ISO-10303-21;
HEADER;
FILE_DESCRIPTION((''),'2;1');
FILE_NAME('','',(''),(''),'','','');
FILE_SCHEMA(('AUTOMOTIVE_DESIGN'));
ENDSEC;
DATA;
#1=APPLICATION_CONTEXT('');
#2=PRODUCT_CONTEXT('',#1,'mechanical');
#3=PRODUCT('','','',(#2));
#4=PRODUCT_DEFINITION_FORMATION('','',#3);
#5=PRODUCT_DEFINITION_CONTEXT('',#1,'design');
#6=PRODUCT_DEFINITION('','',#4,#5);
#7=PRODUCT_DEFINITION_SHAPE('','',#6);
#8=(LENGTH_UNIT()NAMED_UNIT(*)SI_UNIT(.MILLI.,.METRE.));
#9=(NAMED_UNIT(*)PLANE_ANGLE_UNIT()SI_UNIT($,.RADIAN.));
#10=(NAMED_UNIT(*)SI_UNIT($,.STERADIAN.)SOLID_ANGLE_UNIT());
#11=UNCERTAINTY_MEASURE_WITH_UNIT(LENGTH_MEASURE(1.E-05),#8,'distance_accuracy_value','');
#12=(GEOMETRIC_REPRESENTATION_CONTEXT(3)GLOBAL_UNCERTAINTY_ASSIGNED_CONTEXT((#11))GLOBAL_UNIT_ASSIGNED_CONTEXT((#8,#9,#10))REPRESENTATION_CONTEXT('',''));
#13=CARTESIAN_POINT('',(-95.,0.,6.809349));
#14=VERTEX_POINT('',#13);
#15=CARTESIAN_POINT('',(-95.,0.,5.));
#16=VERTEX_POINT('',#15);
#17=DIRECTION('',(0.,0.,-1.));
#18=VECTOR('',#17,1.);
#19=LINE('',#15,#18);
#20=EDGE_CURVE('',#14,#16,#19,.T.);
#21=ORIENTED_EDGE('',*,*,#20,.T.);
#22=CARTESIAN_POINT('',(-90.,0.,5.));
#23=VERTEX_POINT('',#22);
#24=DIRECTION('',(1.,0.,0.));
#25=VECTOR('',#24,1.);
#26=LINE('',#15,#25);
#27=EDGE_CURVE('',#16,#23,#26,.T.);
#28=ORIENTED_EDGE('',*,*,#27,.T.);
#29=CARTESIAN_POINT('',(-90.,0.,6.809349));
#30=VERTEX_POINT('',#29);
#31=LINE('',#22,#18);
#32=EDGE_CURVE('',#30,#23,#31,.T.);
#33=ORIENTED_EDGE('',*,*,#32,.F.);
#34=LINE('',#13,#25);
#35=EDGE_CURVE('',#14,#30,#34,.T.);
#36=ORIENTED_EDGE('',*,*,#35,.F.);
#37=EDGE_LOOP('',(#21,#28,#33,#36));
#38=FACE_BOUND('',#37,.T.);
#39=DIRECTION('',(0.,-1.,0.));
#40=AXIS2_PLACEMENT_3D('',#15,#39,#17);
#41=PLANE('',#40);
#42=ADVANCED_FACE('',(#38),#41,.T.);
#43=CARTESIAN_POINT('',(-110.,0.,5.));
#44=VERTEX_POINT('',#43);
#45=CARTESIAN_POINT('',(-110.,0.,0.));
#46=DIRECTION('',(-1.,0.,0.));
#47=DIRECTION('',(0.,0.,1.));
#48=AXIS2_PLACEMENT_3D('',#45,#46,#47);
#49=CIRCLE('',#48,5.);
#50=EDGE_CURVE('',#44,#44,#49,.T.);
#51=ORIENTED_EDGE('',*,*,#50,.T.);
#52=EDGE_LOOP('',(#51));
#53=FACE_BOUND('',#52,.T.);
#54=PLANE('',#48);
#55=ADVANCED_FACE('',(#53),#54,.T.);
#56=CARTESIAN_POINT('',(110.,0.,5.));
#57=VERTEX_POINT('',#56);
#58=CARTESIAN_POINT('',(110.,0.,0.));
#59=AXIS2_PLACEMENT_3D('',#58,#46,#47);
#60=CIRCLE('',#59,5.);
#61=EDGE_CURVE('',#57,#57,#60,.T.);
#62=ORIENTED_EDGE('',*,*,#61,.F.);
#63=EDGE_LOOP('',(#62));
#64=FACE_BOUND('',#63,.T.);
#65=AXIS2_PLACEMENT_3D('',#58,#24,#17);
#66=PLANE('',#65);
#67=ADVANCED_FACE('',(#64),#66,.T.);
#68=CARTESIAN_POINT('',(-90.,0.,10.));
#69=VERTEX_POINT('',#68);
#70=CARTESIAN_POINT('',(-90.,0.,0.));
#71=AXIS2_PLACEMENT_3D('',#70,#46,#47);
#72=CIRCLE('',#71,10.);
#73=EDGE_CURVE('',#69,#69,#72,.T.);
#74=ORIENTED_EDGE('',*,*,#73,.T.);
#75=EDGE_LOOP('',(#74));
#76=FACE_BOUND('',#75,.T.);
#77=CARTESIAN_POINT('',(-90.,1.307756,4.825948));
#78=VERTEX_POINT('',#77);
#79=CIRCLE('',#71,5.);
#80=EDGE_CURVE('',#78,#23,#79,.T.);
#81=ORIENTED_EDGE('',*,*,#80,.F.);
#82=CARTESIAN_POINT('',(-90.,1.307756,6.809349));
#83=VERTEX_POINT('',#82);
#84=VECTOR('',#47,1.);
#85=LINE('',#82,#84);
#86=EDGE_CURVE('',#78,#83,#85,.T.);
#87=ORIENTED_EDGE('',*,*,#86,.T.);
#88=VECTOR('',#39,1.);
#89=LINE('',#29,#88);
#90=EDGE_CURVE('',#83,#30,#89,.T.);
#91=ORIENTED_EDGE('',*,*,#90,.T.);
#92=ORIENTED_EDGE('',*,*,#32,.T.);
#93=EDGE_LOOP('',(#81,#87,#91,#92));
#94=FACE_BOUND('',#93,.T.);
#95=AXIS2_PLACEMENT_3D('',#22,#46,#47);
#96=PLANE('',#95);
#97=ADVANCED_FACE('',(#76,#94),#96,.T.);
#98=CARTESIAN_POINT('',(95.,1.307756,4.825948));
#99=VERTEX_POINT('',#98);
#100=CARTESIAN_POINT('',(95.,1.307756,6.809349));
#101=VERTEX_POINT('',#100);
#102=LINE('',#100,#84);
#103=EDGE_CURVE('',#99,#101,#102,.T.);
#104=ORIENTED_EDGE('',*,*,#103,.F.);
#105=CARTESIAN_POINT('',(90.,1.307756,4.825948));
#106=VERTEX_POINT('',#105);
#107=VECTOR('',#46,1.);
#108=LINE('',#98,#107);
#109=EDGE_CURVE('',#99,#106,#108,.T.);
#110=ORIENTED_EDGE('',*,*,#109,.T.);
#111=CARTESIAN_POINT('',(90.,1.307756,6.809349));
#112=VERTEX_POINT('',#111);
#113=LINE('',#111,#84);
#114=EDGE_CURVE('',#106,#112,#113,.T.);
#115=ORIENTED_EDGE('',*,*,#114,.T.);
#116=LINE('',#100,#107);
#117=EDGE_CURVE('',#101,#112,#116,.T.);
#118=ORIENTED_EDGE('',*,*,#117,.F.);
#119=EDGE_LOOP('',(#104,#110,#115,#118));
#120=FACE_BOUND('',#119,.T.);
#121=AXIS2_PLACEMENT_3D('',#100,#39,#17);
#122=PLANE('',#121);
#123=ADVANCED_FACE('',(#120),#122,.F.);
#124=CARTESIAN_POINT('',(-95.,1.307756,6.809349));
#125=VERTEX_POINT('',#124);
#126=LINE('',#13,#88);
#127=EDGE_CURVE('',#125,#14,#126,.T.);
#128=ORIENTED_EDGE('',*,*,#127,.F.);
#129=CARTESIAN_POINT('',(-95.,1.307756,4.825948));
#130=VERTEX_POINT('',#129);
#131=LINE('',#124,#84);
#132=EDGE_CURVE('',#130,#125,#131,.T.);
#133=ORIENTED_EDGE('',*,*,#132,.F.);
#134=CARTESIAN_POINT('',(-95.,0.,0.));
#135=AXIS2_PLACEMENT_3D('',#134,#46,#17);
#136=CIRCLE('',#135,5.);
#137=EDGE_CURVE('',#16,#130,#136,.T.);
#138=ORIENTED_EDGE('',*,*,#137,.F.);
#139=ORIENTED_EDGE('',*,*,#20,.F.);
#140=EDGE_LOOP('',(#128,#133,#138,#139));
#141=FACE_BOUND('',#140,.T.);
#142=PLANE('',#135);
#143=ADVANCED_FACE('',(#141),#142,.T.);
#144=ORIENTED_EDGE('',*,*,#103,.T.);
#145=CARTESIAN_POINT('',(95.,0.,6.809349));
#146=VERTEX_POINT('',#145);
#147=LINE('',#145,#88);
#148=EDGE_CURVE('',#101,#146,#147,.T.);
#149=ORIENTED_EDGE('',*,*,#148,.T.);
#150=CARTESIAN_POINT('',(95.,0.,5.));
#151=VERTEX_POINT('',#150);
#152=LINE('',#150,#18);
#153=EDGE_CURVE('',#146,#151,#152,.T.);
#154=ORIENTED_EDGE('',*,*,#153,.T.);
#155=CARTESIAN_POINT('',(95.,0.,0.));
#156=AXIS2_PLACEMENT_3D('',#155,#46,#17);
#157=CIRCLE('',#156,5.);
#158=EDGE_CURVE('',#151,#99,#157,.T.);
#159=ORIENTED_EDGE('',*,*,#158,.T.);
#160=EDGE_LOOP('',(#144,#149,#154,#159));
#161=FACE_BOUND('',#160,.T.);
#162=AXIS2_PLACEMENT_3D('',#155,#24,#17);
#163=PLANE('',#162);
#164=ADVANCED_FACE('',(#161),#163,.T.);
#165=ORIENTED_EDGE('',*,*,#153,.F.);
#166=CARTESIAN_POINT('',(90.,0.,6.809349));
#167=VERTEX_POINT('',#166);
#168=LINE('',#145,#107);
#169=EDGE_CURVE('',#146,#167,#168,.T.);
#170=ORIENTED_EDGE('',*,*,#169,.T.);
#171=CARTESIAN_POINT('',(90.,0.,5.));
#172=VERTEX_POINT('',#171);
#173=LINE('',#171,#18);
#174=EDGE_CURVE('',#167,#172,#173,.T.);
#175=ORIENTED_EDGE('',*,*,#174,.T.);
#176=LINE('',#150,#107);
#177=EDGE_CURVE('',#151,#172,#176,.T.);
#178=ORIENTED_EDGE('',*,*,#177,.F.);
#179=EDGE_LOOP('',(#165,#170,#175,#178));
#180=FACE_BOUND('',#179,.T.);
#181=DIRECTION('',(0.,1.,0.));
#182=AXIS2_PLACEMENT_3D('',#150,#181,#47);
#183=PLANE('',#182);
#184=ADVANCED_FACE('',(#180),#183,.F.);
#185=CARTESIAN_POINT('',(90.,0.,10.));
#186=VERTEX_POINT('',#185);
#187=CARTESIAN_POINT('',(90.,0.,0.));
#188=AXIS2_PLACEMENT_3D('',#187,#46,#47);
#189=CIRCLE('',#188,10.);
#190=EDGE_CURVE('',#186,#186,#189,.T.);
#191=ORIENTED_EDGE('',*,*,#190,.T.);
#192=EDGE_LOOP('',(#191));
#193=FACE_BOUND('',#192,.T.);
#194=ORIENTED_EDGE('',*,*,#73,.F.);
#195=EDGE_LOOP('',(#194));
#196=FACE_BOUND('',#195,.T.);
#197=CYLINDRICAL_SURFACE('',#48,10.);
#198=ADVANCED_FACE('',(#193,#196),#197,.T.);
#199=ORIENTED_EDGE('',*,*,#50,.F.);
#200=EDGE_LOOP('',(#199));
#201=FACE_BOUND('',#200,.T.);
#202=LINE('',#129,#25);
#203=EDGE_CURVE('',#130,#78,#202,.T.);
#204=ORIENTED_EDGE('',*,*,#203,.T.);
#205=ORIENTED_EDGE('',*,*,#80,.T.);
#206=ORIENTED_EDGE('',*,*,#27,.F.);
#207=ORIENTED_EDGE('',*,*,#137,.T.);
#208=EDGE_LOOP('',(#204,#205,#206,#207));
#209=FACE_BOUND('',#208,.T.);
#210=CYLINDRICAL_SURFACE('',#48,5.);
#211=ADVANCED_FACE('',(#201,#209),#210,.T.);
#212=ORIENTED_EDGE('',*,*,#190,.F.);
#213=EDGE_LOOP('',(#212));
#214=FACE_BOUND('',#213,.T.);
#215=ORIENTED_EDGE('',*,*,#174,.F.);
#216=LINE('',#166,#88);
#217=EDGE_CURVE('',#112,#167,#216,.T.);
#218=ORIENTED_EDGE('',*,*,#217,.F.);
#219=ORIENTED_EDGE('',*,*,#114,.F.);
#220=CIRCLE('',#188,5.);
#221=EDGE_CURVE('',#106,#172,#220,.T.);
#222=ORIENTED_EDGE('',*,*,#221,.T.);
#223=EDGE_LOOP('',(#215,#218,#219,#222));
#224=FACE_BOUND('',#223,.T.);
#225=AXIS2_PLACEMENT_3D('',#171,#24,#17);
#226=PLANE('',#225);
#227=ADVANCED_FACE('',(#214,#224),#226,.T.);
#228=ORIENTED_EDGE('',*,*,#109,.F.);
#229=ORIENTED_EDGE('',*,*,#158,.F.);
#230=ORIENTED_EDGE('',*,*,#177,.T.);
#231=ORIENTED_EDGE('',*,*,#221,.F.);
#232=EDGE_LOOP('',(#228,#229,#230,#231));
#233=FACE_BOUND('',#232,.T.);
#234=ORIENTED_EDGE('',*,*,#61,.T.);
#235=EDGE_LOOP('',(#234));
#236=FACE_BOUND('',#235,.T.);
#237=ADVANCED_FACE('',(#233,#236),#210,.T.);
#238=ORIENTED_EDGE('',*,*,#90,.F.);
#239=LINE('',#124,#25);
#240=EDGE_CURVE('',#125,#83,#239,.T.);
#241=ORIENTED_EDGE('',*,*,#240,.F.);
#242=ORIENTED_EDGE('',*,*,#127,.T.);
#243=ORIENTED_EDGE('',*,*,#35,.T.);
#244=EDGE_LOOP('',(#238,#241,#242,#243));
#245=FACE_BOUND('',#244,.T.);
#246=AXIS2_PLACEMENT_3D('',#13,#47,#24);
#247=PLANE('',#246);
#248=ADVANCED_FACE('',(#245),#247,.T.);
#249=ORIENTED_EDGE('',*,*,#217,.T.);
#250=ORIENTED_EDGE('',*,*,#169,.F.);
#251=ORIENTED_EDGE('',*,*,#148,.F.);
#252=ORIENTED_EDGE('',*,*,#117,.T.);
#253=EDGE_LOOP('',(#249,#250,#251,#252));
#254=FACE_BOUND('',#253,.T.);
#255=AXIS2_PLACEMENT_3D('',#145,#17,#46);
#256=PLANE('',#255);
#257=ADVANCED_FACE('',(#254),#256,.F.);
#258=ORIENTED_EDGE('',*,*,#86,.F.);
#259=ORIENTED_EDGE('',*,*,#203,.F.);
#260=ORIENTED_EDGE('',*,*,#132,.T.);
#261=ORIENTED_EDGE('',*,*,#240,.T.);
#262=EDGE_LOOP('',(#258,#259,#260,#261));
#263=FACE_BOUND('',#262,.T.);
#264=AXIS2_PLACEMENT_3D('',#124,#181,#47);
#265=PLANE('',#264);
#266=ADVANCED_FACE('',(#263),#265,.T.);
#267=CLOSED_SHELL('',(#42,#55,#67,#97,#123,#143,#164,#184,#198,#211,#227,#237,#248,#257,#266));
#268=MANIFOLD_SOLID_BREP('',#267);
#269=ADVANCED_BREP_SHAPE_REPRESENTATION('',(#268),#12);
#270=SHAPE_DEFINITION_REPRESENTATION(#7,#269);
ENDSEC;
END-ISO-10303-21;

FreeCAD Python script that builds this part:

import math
import FreeCAD as App
import Part
import Sketcher
from FreeCAD import Vector
Q = App.Units.Quantity

doc = App.newDocument("Part")
params = doc.addObject("Spreadsheet::Sheet", "Params")
for row, (alias, value) in enumerate([
    ("sketch1_width", "220 mm"),
    ("sketch1_width2", "20 mm"),
    ("sketch1_height", "5 mm"),
    ("revolution_angle", "360 deg"),
    ("sketch2_radius", "5 mm"),
    ("pad1_length", "5 mm"),
], start=1):
    params.set(f"A{row}", alias)
    params.set(f"B{row}", "=" + value)
    params.setAlias(f"B{row}", alias)

body = doc.addObject("PartDesign::Body", "Body")

# Sketch on XZ plane
sketch1 = body.newObject("Sketcher::SketchObject", "Sketch")
sketch1.AttachmentSupport = (doc.getObject("XZ_Plane"), [""])
sketch1.MapMode = "FlatFace"
sketch1.addGeometry(Part.LineSegment(Vector(110, 0, 0), Vector(-110, 0, 0)), False)
sketch1.addGeometry(Part.LineSegment(Vector(-110, 0, 0), Vector(-110, 5, 0)), False)
sketch1.addGeometry(Part.LineSegment(Vector(-110, 5, 0), Vector(-90, 5, 0)), False)
sketch1.addGeometry(Part.LineSegment(Vector(-90, 5, 0), Vector(-90, 10, 0)), False)
sketch1.addGeometry(Part.LineSegment(Vector(-90, 10, 0), Vector(90, 10, 0)), False)
sketch1.addGeometry(Part.LineSegment(Vector(90, 10, 0), Vector(90, 5, 0)), False)
sketch1.addGeometry(Part.LineSegment(Vector(90, 5, 0), Vector(110, 5, 0)), False)
sketch1.addGeometry(Part.LineSegment(Vector(110, 5, 0), Vector(110, 0, 0)), False)
sketch1.addConstraint(Sketcher.Constraint("Coincident", 0, 2, 1, 1))
sketch1.addConstraint(Sketcher.Constraint("Coincident", 1, 2, 2, 1))
sketch1.addConstraint(Sketcher.Constraint("Coincident", 2, 2, 3, 1))
sketch1.addConstraint(Sketcher.Constraint("Coincident", 3, 2, 4, 1))
sketch1.addConstraint(Sketcher.Constraint("Coincident", 4, 2, 5, 1))
sketch1.addConstraint(Sketcher.Constraint("Coincident", 5, 2, 6, 1))
sketch1.addConstraint(Sketcher.Constraint("Coincident", 6, 2, 7, 1))
sketch1.addConstraint(Sketcher.Constraint("Coincident", 7, 2, 0, 1))
sketch1.addConstraint(Sketcher.Constraint("Horizontal", 0))
sketch1.addConstraint(Sketcher.Constraint("Vertical", 1))
sketch1.addConstraint(Sketcher.Constraint("Horizontal", 2))
sketch1.addConstraint(Sketcher.Constraint("Vertical", 3))
sketch1.addConstraint(Sketcher.Constraint("Horizontal", 4))
sketch1.addConstraint(Sketcher.Constraint("Vertical", 5))
sketch1.addConstraint(Sketcher.Constraint("Horizontal", 6))
sketch1.addConstraint(Sketcher.Constraint("Vertical", 7))
sketch1.addConstraint(Sketcher.Constraint("Symmetric", 0, 2, 7, 2, -1, 1))
sketch1.addConstraint(Sketcher.Constraint("Symmetric", 2, 2, 5, 2, -2))
sketch1.addConstraint(Sketcher.Constraint("Equal", 1, 3))
sketch1.addConstraint(Sketcher.Constraint("DistanceX", 0, 2, 0, 1, Q("220 mm")))
sketch1.addConstraint(Sketcher.Constraint("DistanceX", 2, 1, 2, 2, Q("20 mm")))
sketch1.addConstraint(Sketcher.Constraint("DistanceY", 1, 1, 1, 2, Q("5 mm")))
sketch1.setExpression("Constraints[19]", "Params.sketch1_width")
sketch1.setExpression("Constraints[20]", "Params.sketch1_width2")
sketch1.setExpression("Constraints[21]", "Params.sketch1_height")
revolution = body.newObject("PartDesign::Revolution", "Revolution")
revolution.Profile = sketch1
revolution.ReferenceAxis = (sketch1, ["H_Axis"])
revolution.setExpression("Angle", "Params.revolution_angle")

# Sketch on YZ plane
sketch2 = body.newObject("Sketcher::SketchObject", "Sketch001")
sketch2.AttachmentSupport = (doc.getObject("YZ_Plane"), [""])
sketch2.MapMode = "FlatFace"
sketch2.AttachmentOffset = App.Placement(Vector(0, 0, 90), App.Rotation())
sketch2.addGeometry(Part.LineSegment(Vector(0, 6.8, 0), Vector(0, 5, 0)), False)
sketch2.addGeometry(Part.ArcOfCircle(Part.Circle(Vector(0, 0, 0), Vector(0, 0, 1), 5), math.radians(74.84), math.radians(90)), False)
sketch2.addGeometry(Part.LineSegment(Vector(1.3, 4.8, 0), Vector(1.3, 6.8, 0)), False)
sketch2.addGeometry(Part.LineSegment(Vector(1.3, 6.8, 0), Vector(0, 6.8, 0)), False)
sketch2.addConstraint(Sketcher.Constraint("Coincident", 0, 2, 1, 2))
sketch2.addConstraint(Sketcher.Constraint("Coincident", 1, 1, 2, 1))
sketch2.addConstraint(Sketcher.Constraint("Coincident", 2, 2, 3, 1))
sketch2.addConstraint(Sketcher.Constraint("Coincident", 3, 2, 0, 1))
sketch2.addConstraint(Sketcher.Constraint("Vertical", 0))
sketch2.addConstraint(Sketcher.Constraint("Vertical", 2))
sketch2.addConstraint(Sketcher.Constraint("Horizontal", 3))
sketch2.addConstraint(Sketcher.Constraint("Coincident", 1, 3, -1, 1))
sketch2.addConstraint(Sketcher.Constraint("PointOnObject", 0, 2, -2))
sketch2.addConstraint(Sketcher.Constraint("Radius", 1, Q("5 mm")))
sketch2.addConstraint(Sketcher.Constraint("DistanceY", 2, 1, 2, 2, Q("1.983401 mm")))
sketch2.addConstraint(Sketcher.Constraint("DistanceY", 0, 2, 0, 1, Q("1.809349 mm")))
sketch2.setExpression("Constraints[9]", "Params.sketch2_radius")
pad1 = body.newObject("PartDesign::Pad", "Pad")
pad1.Profile = sketch2
pad1.setExpression("Length", "Params.pad1_length")
doc.recompute()

mirrored = body.newObject("PartDesign::Mirrored", "Mirrored")
mirrored.Originals = [pad1]
mirrored.MirrorPlane = (doc.getObject("YZ_Plane"), [""])
body.Tip = mirrored

doc.recompute()
